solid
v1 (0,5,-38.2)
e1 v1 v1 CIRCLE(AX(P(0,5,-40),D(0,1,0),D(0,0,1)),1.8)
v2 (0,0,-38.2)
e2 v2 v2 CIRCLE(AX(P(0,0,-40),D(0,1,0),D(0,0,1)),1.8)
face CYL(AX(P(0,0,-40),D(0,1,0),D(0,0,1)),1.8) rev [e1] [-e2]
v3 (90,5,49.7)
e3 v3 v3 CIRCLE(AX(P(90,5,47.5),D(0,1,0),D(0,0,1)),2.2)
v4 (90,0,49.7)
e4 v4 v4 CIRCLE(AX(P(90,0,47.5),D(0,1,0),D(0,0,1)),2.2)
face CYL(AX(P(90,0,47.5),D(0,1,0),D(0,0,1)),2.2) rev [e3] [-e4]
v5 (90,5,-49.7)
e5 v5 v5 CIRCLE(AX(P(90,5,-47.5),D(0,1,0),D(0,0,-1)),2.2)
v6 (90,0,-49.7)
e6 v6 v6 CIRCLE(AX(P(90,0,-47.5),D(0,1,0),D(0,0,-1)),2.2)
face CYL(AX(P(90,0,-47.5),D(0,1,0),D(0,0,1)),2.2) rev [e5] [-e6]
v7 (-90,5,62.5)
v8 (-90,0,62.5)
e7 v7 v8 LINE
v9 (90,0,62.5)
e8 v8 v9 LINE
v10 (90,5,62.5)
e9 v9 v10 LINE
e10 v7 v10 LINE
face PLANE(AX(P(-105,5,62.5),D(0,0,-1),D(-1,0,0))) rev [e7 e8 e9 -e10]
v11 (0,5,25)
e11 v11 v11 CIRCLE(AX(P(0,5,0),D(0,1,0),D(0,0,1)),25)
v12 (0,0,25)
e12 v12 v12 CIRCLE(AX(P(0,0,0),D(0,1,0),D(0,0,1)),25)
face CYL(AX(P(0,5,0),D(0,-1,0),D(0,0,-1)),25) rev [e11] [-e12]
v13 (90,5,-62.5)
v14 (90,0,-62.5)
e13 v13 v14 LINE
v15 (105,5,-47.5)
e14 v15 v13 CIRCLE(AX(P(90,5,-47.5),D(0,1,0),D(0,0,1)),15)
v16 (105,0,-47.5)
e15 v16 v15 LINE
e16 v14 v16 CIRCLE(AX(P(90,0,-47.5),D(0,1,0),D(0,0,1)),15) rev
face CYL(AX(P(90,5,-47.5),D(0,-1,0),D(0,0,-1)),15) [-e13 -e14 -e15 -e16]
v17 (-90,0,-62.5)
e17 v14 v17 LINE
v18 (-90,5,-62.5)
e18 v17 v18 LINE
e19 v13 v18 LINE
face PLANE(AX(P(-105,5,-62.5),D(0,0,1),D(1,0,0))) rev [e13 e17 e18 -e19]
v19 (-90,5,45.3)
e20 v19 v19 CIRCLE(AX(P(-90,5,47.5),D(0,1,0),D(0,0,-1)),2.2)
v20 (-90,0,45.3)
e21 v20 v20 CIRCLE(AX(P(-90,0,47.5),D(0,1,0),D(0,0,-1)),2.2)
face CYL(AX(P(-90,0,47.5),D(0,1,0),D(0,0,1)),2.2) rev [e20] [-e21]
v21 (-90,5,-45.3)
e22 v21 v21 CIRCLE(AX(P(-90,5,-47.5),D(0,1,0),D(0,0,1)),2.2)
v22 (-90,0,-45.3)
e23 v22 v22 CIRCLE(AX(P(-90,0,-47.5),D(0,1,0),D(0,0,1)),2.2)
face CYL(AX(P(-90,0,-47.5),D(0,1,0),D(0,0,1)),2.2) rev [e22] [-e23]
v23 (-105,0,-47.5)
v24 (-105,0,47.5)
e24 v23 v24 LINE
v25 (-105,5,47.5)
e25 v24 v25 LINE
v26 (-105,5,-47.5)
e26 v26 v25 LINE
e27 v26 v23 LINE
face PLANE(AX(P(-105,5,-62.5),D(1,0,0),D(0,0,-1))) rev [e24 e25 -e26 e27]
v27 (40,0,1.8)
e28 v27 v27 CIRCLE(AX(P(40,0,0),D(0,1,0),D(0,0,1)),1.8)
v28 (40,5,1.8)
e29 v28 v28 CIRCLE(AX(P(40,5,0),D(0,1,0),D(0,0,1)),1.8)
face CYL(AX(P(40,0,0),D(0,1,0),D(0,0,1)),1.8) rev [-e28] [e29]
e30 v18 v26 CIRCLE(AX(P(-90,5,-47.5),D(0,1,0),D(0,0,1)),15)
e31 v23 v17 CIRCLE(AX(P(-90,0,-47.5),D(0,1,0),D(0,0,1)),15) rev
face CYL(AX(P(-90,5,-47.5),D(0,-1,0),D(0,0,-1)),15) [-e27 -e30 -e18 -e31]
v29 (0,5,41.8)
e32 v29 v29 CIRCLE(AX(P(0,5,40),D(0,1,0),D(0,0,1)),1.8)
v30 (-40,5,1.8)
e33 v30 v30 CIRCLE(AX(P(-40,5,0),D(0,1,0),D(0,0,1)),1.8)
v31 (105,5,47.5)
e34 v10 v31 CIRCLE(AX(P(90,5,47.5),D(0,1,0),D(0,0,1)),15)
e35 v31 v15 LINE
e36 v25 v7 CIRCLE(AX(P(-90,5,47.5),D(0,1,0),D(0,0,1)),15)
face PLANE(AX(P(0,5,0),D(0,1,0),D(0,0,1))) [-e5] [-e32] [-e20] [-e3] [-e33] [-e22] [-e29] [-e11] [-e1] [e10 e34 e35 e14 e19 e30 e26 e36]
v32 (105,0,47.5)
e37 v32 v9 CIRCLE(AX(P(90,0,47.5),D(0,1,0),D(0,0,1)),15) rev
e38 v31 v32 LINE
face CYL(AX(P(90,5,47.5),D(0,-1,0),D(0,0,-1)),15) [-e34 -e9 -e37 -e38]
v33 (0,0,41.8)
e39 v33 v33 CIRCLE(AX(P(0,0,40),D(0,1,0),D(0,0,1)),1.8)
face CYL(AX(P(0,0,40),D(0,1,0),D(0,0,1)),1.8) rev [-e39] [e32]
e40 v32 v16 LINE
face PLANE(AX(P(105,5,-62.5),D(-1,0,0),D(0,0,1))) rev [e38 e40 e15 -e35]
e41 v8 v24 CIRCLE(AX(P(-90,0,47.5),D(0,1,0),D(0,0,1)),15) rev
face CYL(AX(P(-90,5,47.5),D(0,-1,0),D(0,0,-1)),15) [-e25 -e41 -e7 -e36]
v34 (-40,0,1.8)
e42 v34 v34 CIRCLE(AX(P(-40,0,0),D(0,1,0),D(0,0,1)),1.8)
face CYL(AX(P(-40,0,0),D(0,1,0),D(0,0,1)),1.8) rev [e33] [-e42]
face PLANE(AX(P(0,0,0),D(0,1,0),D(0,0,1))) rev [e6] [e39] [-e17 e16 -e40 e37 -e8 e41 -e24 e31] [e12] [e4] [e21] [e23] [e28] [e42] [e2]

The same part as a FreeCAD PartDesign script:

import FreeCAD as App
import Part
import Sketcher

V = App.Vector
Q = App.Units.Quantity


def edges_at(feature, points):
    """Names of the edges that pass closest to the given points."""
    edges = feature.Shape.Edges
    near = lambda p: min(range(len(edges)), key=lambda i: edges[i].distToShape(Part.Vertex(*p))[0])
    return sorted({f"Edge{near(p) + 1}" for p in points})

doc = App.newDocument("Part")
params = doc.addObject("Spreadsheet::Sheet", "Params")
for row, (alias, value) in enumerate([
    ("sketch1_diameter", "120 mm"),
    ("sketch1_diameter2", "50 mm"),
    ("pad1_length", "5 mm"),
    ("sketch2_diameter", "3.6 mm"),
    ("pocket1_length", "5 mm"),
    ("sketch3_diameter", "120 mm"),
    ("sketch3_width", "210 mm"),
    ("sketch3_height", "125 mm"),
    ("pad2_length", "5 mm"),
    ("sketch4_diameter", "4.4 mm"),
    ("pocket2_length", "5 mm"),
    ("fillet_radius", "15 mm"),
], start=1):
    params.set(f"A{row}", alias)
    params.set(f"B{row}", "=" + value)
    params.setAlias(f"B{row}", alias)

body = doc.addObject("PartDesign::Body", "Body")

# Sketch on XZ plane
sketch1 = doc.addObject("Sketcher::SketchObject", "Sketch")
body.addObject(sketch1)
sketch1.AttachmentSupport = (doc.XZ_Plane, [""])
sketch1.MapMode = "FlatFace"
sketch1.addGeometry(Part.Circle(V(0, 0, 0), V(0, 0, 1), 60), False)
sketch1.addGeometry(Part.Circle(V(0, 0, 0), V(0, 0, 1), 25), False)
sketch1.addConstraint(Sketcher.Constraint("Coincident", 0, 3, -1, 1))
sketch1.addConstraint(Sketcher.Constraint("Coincident", 1, 3, -1, 1))
sketch1.addConstraint(Sketcher.Constraint("Diameter", 0, Q("120 mm")))
sketch1.addConstraint(Sketcher.Constraint("Diameter", 1, Q("50 mm")))
sketch1.setExpression("Constraints[2]", "Params.sketch1_diameter")
sketch1.setExpression("Constraints[3]", "Params.sketch1_diameter2")
pad1 = doc.addObject("PartDesign::Pad", "Pad")
body.addObject(pad1)
pad1.Profile = sketch1
pad1.setExpression("Length", "Params.pad1_length")
pad1.Reversed = True

# Sketch on XZ plane
sketch2 = doc.addObject("Sketcher::SketchObject", "Sketch001")
body.addObject(sketch2)
sketch2.AttachmentSupport = (doc.XZ_Plane, [""])
sketch2.MapMode = "FlatFace"
sketch2.AttachmentOffset = App.Placement(V(0, 0, -5), App.Rotation())
sketch2.addGeometry(Part.Circle(V(0, -40, 0), V(0, 0, 1), 1.8), False)
sketch2.addGeometry(Part.Circle(V(40, 0, 0), V(0, 0, 1), 1.8), False)
sketch2.addGeometry(Part.Circle(V(0, 40, 0), V(0, 0, 1), 1.8), False)
sketch2.addGeometry(Part.Circle(V(-40, 0, 0), V(0, 0, 1), 1.8), False)
sketch2.addConstraint(Sketcher.Constraint("Equal", 0, 1))
sketch2.addConstraint(Sketcher.Constraint("Equal", 1, 2))
sketch2.addConstraint(Sketcher.Constraint("Equal", 2, 3))
sketch2.addConstraint(Sketcher.Constraint("Symmetric", 0, 3, 2, 3, -1, 1))
sketch2.addConstraint(Sketcher.Constraint("Symmetric", 1, 3, 3, 3, -1, 1))
sketch2.addConstraint(Sketcher.Constraint("PointOnObject", 0, 3, -2))
sketch2.addConstraint(Sketcher.Constraint("PointOnObject", 1, 3, -1))
sketch2.addConstraint(Sketcher.Constraint("Diameter", 0, Q("3.6 mm")))
sketch2.addConstraint(Sketcher.Constraint("DistanceY", 0, 3, -1, 1, Q("40 mm")))
sketch2.addConstraint(Sketcher.Constraint("DistanceX", -1, 1, 1, 3, Q("40 mm")))
sketch2.setExpression("Constraints[7]", "Params.sketch2_diameter")
pocket1 = doc.addObject("PartDesign::Pocket", "Pocket")
body.addObject(pocket1)
pocket1.Profile = sketch2
pocket1.setExpression("Length", "Params.pocket1_length")
pocket1.Reversed = True

# Sketch on XZ plane
sketch3 = doc.addObject("Sketcher::SketchObject", "Sketch002")
body.addObject(sketch3)
sketch3.AttachmentSupport = (doc.XZ_Plane, [""])
sketch3.MapMode = "FlatFace"
sketch3.addGeometry(Part.LineSegment(V(-105, -62, 0), V(-105, 62, 0)), False)
sketch3.addGeometry(Part.LineSegment(V(-105, 62, 0), V(105, 62, 0)), False)
sketch3.addGeometry(Part.LineSegment(V(105, 62, 0), V(105, -62, 0)), False)
sketch3.addGeometry(Part.LineSegment(V(105, -62, 0), V(-105, -62, 0)), False)
sketch3.addGeometry(Part.Circle(V(0, 0, 0), V(0, 0, 1), 60), False)
sketch3.addConstraint(Sketcher.Constraint("Coincident", 0, 2, 1, 1))
sketch3.addConstraint(Sketcher.Constraint("Coincident", 1, 2, 2, 1))
sketch3.addConstraint(Sketcher.Constraint("Coincident", 2, 2, 3, 1))
sketch3.addConstraint(Sketcher.Constraint("Coincident", 3, 2, 0, 1))
sketch3.addConstraint(Sketcher.Constraint("Vertical", 0))
sketch3.addConstraint(Sketcher.Constraint("Horizontal", 1))
sketch3.addConstraint(Sketcher.Constraint("Vertical", 2))
sketch3.addConstraint(Sketcher.Constraint("Horizontal", 3))
sketch3.addConstraint(Sketcher.Constraint("Coincident", 4, 3, -1, 1))
sketch3.addConstraint(Sketcher.Constraint("Symmetric", 0, 2, 2, 2, -1, 1))
sketch3.addConstraint(Sketcher.Constraint("Diameter", 4, Q("120 mm")))
sketch3.addConstraint(Sketcher.Constraint("DistanceX", 1, 1, 1, 2, Q("210 mm")))
sketch3.addConstraint(Sketcher.Constraint("DistanceY", 0, 1, 0, 2, Q("125 mm")))
sketch3.setExpression("Constraints[10]", "Params.sketch3_diameter")
sketch3.setExpression("Constraints[11]", "Params.sketch3_width")
sketch3.setExpression("Constraints[12]", "Params.sketch3_height")
pad2 = doc.addObject("PartDesign::Pad", "Pad001")
body.addObject(pad2)
pad2.Profile = sketch3
pad2.setExpression("Length", "Params.pad2_length")
pad2.Reversed = True

# Sketch on XZ plane
sketch4 = doc.addObject("Sketcher::SketchObject", "Sketch003")
body.addObject(sketch4)
sketch4.AttachmentSupport = (doc.XZ_Plane, [""])
sketch4.MapMode = "FlatFace"
sketch4.AttachmentOffset = App.Placement(V(0, 0, -5), App.Rotation())
sketch4.addGeometry(Part.Circle(V(-90, -47.5, 0), V(0, 0, 1), 2.2), False)
sketch4.addGeometry(Part.Circle(V(90, -47.5, 0), V(0, 0, 1), 2.2), False)
sketch4.addGeometry(Part.Circle(V(90, 47.5, 0), V(0, 0, 1), 2.2), False)
sketch4.addGeometry(Part.Circle(V(-90, 47.5, 0), V(0, 0, 1), 2.2), False)
sketch4.addConstraint(Sketcher.Constraint("Equal", 0, 1))
sketch4.addConstraint(Sketcher.Constraint("Equal", 1, 2))
sketch4.addConstraint(Sketcher.Constraint("Equal", 2, 3))
sketch4.addConstraint(Sketcher.Constraint("Symmetric", 0, 3, 2, 3, -1, 1))
sketch4.addConstraint(Sketcher.Constraint("Symmetric", 1, 3, 3, 3, -1, 1))
sketch4.addConstraint(Sketcher.Constraint("Symmetric", 0, 3, 1, 3, -2))
sketch4.addConstraint(Sketcher.Constraint("Diameter", 0, Q("4.4 mm")))
sketch4.addConstraint(Sketcher.Constraint("DistanceX", 0, 3, -1, 1, Q("90 mm")))
sketch4.addConstraint(Sketcher.Constraint("DistanceY", 1, 3, 2, 3, Q("95 mm")))
sketch4.setExpression("Constraints[6]", "Params.sketch4_diameter")
pocket2 = doc.addObject("PartDesign::Pocket", "Pocket001")
body.addObject(pocket2)
pocket2.Profile = sketch4
pocket2.setExpression("Length", "Params.pocket2_length")
pocket2.Reversed = True
doc.recompute()

fillet = doc.addObject("PartDesign::Fillet", "Fillet")
body.addObject(fillet)
fillet.Base = (pocket2, edges_at(pocket2, [
    (-105, 2.5, -62.5),
    (-105, 2.5, 62.5),
    (105, 2.5, 62.5),
    (105, 2.5, -62.5),
]))
fillet.setExpression("Radius", "Params.fillet_radius")

doc.recompute()
